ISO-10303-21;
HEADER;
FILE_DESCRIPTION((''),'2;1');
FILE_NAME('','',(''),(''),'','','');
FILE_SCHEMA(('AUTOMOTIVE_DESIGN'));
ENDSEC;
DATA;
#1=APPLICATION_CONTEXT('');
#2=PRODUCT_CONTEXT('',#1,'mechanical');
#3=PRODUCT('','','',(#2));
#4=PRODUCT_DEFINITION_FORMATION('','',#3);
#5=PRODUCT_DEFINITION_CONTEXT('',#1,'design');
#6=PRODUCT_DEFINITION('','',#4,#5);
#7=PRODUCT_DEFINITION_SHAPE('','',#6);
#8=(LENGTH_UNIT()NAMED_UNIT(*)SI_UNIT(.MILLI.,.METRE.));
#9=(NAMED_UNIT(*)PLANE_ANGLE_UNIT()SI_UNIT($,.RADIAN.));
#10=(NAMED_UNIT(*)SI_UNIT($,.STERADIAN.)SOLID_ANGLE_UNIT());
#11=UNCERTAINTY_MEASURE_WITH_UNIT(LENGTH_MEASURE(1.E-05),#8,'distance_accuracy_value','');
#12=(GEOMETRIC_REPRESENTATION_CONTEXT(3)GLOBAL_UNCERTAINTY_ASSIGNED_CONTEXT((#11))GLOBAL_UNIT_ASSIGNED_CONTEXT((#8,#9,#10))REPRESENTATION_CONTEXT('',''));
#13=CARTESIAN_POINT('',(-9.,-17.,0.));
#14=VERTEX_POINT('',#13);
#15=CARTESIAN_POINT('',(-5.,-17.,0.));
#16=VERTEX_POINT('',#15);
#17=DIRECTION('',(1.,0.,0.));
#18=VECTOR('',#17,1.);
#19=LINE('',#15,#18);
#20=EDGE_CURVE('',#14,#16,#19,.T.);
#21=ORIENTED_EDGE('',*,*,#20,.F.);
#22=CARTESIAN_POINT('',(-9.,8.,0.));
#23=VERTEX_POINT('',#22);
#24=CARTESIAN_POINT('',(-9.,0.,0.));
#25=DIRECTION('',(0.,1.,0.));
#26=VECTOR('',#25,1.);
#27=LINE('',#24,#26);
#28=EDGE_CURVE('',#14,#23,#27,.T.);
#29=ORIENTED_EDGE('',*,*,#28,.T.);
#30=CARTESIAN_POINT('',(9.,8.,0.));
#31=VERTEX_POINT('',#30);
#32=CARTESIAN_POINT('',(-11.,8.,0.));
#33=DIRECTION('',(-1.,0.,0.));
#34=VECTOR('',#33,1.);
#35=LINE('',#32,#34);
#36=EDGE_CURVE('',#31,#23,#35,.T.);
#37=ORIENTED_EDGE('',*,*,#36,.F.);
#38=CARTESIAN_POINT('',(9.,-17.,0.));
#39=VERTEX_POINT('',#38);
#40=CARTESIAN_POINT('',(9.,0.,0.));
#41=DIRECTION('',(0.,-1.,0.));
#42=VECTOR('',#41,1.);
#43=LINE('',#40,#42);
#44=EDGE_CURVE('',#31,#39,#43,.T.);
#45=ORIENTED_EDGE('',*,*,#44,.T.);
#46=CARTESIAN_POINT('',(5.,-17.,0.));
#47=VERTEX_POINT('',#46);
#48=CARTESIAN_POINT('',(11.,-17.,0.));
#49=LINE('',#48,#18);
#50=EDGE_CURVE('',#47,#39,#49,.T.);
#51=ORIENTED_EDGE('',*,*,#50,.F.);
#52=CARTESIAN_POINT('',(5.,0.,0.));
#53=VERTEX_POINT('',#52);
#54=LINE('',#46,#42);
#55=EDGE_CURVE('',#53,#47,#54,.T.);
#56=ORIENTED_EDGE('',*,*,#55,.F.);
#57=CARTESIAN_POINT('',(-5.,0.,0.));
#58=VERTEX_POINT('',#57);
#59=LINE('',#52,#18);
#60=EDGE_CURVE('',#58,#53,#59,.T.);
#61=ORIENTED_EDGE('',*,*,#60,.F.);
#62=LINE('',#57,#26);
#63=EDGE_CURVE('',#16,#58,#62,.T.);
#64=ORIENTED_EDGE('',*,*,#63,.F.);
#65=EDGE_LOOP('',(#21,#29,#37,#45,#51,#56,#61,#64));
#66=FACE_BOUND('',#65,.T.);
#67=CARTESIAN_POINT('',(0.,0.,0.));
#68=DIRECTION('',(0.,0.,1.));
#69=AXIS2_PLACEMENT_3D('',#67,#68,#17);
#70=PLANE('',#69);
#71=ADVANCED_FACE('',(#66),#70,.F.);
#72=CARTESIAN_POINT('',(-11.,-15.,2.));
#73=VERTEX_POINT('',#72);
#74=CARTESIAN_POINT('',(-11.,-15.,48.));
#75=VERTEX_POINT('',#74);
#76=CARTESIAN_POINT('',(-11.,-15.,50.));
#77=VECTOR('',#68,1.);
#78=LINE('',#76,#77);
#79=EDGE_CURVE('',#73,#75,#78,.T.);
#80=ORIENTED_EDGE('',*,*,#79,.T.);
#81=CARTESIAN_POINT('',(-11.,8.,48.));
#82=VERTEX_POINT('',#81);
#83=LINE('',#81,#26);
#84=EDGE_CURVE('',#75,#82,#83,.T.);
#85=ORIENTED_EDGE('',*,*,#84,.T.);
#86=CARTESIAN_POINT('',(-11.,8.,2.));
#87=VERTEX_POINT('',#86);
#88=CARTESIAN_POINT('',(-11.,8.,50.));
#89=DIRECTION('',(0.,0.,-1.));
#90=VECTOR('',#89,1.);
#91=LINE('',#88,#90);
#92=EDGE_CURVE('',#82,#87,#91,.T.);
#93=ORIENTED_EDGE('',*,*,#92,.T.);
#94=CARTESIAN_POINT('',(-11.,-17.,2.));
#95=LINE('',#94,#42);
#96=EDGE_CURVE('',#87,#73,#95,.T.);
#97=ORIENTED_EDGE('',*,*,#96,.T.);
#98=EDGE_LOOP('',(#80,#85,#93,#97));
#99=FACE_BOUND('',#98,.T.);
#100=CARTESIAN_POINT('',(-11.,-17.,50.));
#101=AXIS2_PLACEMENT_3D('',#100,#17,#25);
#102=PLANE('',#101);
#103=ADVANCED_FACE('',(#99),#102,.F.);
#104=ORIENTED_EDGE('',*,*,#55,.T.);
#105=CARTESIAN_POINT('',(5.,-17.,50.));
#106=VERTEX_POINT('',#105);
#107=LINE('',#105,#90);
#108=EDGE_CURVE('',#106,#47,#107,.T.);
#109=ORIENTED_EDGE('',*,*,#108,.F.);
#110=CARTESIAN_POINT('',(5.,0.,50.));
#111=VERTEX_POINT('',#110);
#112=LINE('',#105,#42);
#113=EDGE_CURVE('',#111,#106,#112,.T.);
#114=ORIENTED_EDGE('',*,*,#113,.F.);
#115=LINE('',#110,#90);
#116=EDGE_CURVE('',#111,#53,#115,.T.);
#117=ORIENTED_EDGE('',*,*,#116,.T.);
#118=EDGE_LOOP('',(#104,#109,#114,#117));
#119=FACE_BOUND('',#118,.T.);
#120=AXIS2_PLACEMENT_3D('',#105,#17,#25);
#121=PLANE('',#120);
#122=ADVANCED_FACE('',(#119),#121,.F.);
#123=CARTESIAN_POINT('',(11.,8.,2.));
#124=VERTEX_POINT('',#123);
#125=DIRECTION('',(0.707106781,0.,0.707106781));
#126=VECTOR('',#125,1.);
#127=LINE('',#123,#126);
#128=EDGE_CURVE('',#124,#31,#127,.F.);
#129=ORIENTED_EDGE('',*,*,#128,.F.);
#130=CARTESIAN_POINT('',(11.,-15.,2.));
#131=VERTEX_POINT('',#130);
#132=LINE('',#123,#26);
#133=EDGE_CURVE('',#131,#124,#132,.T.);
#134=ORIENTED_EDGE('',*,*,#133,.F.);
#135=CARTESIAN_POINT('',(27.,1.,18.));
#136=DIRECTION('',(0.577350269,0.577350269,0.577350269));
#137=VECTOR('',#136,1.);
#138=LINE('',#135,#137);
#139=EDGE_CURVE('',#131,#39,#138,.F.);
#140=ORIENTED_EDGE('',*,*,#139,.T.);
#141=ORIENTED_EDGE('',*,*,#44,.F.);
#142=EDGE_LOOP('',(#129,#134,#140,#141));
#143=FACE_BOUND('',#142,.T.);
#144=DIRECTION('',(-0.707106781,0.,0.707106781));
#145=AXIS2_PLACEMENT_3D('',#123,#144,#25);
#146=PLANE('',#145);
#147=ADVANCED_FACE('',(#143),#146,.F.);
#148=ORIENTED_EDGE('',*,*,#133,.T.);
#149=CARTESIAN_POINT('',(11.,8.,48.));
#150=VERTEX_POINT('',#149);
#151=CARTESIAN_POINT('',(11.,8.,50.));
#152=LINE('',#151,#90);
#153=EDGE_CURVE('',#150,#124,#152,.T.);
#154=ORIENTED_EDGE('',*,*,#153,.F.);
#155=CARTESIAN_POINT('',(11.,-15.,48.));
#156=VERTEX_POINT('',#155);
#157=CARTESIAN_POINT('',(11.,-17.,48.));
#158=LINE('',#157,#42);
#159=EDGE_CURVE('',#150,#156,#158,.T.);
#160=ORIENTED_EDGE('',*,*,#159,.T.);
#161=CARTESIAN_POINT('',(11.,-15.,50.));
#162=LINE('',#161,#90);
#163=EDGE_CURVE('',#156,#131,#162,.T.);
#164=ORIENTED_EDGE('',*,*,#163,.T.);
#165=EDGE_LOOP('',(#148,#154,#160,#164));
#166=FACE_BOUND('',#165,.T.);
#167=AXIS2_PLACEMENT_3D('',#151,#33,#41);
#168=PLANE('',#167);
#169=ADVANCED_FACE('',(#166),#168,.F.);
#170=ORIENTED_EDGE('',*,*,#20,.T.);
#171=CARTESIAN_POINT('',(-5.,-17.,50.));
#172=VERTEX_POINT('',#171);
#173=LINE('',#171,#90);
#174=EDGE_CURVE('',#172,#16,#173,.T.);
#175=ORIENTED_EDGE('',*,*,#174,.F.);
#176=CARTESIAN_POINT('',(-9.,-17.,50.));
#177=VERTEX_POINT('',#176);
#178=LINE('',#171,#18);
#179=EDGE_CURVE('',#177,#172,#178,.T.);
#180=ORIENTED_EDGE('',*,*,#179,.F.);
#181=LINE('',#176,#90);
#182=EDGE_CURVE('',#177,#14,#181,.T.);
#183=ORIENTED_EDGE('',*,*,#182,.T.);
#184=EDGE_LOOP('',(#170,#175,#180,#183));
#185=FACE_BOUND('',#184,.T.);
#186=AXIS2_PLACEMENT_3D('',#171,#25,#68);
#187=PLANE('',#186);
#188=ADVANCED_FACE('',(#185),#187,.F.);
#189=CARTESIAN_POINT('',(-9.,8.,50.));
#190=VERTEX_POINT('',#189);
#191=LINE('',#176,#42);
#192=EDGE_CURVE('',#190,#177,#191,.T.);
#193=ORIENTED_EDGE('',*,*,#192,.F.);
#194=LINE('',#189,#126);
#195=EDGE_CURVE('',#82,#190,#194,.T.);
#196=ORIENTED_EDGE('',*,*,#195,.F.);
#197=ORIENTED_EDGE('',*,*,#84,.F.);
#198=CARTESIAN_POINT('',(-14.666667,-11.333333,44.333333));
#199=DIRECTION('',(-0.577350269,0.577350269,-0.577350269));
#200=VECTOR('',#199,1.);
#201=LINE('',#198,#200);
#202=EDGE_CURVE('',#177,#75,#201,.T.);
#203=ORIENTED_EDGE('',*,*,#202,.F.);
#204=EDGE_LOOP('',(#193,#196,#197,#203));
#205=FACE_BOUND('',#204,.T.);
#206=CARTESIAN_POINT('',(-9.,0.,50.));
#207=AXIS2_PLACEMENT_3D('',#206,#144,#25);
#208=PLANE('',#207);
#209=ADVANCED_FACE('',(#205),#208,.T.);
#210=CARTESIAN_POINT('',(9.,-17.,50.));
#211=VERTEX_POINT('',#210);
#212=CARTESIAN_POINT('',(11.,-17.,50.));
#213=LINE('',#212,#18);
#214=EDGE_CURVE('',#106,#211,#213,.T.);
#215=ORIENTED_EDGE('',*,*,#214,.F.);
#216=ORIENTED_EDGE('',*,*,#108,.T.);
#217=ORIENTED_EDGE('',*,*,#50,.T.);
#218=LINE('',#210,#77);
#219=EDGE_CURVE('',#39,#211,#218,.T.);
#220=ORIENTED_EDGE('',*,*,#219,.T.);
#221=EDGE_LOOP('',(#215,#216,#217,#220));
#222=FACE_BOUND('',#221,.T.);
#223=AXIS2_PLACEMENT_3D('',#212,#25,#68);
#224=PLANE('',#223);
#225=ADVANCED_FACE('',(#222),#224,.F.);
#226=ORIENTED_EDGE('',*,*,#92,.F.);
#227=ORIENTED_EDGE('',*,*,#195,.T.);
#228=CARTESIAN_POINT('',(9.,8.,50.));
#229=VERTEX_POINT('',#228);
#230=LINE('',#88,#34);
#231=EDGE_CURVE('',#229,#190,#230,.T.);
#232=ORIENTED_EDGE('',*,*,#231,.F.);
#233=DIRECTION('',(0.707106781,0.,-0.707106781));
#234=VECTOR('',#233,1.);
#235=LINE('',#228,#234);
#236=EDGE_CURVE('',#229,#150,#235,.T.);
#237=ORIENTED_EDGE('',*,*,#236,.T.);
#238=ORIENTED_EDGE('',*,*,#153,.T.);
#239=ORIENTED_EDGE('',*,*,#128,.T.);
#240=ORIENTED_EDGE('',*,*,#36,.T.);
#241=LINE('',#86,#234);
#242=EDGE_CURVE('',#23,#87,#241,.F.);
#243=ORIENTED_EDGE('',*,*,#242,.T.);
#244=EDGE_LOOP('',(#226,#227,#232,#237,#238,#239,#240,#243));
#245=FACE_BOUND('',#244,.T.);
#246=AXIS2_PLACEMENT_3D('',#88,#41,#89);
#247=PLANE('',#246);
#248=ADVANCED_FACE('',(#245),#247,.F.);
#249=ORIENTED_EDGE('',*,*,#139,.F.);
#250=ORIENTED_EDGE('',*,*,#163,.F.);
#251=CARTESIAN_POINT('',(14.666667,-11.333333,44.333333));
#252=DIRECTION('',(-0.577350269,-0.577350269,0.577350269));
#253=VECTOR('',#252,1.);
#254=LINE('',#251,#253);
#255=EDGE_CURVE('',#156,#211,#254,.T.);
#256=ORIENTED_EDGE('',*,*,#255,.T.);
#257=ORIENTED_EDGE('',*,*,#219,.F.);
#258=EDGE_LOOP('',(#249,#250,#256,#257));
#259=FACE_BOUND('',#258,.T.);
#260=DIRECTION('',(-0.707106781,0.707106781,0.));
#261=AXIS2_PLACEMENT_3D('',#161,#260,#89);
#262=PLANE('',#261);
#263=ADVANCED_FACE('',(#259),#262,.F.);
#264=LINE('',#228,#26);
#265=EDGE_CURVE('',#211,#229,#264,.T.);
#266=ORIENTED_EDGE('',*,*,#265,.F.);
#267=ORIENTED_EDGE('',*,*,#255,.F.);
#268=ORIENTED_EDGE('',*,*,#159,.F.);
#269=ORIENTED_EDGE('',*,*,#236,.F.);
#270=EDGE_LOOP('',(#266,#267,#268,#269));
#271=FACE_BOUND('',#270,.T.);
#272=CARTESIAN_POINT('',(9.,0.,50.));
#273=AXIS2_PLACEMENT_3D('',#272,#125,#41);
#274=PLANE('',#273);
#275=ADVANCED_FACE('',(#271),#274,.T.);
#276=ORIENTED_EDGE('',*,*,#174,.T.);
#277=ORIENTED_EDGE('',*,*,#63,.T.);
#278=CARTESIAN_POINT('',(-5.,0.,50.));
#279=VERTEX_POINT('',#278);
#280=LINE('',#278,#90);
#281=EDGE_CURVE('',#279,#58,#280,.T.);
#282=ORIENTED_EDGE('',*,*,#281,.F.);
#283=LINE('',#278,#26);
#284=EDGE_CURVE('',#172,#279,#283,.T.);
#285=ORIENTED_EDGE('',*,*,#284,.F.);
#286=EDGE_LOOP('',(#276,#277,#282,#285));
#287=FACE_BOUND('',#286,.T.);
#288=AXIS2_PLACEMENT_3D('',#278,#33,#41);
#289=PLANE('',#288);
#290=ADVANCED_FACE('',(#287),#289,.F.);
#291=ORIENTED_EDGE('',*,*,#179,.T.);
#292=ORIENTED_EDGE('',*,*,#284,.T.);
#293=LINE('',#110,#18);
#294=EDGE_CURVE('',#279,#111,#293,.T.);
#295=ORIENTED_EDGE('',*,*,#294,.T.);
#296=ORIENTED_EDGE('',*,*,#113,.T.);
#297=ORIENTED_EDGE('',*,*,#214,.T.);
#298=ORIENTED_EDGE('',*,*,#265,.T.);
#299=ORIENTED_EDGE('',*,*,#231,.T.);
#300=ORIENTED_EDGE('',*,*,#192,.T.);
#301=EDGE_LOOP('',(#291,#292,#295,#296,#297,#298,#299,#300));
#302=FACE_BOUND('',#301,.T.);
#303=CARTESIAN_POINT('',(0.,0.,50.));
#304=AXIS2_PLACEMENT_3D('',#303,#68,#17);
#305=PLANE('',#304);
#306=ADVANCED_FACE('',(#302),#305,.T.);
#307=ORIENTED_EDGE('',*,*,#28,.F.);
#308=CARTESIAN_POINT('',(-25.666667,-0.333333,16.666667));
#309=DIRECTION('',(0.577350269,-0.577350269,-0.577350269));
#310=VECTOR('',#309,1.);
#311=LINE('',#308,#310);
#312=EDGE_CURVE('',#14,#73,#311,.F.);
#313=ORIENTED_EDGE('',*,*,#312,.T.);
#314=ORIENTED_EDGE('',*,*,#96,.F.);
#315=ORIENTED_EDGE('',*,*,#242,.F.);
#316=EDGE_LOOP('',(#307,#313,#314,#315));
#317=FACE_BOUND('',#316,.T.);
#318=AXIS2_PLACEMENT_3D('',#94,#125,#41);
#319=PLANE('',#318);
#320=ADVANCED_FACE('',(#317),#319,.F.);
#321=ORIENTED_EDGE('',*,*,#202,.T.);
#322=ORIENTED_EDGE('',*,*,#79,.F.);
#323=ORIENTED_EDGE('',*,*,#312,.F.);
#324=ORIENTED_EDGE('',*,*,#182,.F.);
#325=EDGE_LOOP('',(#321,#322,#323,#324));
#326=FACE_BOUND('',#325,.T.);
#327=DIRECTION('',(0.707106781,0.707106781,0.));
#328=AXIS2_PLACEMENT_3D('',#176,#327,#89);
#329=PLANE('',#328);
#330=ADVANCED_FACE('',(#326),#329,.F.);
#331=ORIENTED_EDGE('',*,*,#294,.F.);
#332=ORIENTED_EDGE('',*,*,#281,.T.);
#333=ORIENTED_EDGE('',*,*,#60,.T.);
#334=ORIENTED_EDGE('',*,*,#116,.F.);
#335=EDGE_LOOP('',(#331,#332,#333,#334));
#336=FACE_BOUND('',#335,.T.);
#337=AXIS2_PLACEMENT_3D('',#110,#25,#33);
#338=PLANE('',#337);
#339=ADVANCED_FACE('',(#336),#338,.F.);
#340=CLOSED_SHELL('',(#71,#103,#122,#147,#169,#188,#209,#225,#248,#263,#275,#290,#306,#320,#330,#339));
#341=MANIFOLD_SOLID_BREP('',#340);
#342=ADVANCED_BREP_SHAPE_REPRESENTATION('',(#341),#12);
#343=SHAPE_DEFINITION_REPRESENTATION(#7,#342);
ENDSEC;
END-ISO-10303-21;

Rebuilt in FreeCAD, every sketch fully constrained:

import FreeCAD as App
import Part
import Sketcher


def edges_at(feature, points):
    """Names of the edges that pass closest to the given points."""
    edges = feature.Shape.Edges
    near = lambda p: min(range(len(edges)), key=lambda i: edges[i].distToShape(Part.Vertex(*p))[0])
    return sorted({f"Edge{near(p) + 1}" for p in points})

doc = App.newDocument("Part")
body = doc.addObject("PartDesign::Body", "Body")

# Sketch on XY plane
sketch1 = body.newObject("Sketcher::SketchObject", "Sketch")
sketch1.AttachmentSupport = (doc.getObject("XY_Plane"), [""])
sketch1.MapMode = "FlatFace"
sketch1.addGeometry([
    Part.LineSegment(App.Vector(-5, 0, 0), App.Vector(5, 0, 0)),  # 0
    Part.LineSegment(App.Vector(5, 0, 0), App.Vector(5, -17, 0)),  # 1
    Part.LineSegment(App.Vector(5, -17, 0), App.Vector(11, -17, 0)),  # 2
    Part.LineSegment(App.Vector(11, -17, 0), App.Vector(11, 8, 0)),  # 3
    Part.LineSegment(App.Vector(11, 8, 0), App.Vector(-11, 8, 0)),  # 4
    Part.LineSegment(App.Vector(-11, 8, 0), App.Vector(-11, -17, 0)),  # 5
    Part.LineSegment(App.Vector(-11, -17, 0), App.Vector(-5, -17, 0)),  # 6
    Part.LineSegment(App.Vector(-5, -17, 0), App.Vector(-5, 0, 0)),  # 7
], False)
sketch1.addConstraint([
    Sketcher.Constraint("Coincident", 0, 2, 1, 1),
    Sketcher.Constraint("Coincident", 1, 2, 2, 1),
    Sketcher.Constraint("Coincident", 2, 2, 3, 1),
    Sketcher.Constraint("Coincident", 3, 2, 4, 1),
    Sketcher.Constraint("Coincident", 4, 2, 5, 1),
    Sketcher.Constraint("Coincident", 5, 2, 6, 1),
    Sketcher.Constraint("Coincident", 6, 2, 7, 1),
    Sketcher.Constraint("Coincident", 7, 2, 0, 1),
    Sketcher.Constraint("Horizontal", 0),
    Sketcher.Constraint("Vertical", 1),
    Sketcher.Constraint("Horizontal", 2),
    Sketcher.Constraint("Vertical", 3),
    Sketcher.Constraint("Horizontal", 4),
    Sketcher.Constraint("Vertical", 5),
    Sketcher.Constraint("Horizontal", 6),
    Sketcher.Constraint("Vertical", 7),
    Sketcher.Constraint("Symmetric", 0, 2, 7, 2, -1, 1),
    Sketcher.Constraint("Symmetric", 2, 2, 5, 2, -2),
    Sketcher.Constraint("DistanceX", 0, 1, 0, 2, 10.0),
    Sketcher.Constraint("DistanceX", 2, 1, 2, 2, 6.0),
    Sketcher.Constraint("DistanceY", 1, 2, 1, 1, 17.0),
    Sketcher.Constraint("DistanceY", 3, 1, 3, 2, 25.0),
])
pad1 = body.newObject("PartDesign::Pad", "Pad")
pad1.Profile = sketch1
pad1.Length = 50
doc.recompute()

chamfer = body.newObject("PartDesign::Chamfer", "Chamfer")
chamfer.Base = (pad1, edges_at(pad1, [
    (11, -4.5, 0),
    (11, -4.5, 50),
    (-11, -17, 25),
    (11, -17, 25),
    (-11, -4.5, 50),
    (-11, -4.5, 0),
]))
chamfer.Size = 2

doc.recompute()
